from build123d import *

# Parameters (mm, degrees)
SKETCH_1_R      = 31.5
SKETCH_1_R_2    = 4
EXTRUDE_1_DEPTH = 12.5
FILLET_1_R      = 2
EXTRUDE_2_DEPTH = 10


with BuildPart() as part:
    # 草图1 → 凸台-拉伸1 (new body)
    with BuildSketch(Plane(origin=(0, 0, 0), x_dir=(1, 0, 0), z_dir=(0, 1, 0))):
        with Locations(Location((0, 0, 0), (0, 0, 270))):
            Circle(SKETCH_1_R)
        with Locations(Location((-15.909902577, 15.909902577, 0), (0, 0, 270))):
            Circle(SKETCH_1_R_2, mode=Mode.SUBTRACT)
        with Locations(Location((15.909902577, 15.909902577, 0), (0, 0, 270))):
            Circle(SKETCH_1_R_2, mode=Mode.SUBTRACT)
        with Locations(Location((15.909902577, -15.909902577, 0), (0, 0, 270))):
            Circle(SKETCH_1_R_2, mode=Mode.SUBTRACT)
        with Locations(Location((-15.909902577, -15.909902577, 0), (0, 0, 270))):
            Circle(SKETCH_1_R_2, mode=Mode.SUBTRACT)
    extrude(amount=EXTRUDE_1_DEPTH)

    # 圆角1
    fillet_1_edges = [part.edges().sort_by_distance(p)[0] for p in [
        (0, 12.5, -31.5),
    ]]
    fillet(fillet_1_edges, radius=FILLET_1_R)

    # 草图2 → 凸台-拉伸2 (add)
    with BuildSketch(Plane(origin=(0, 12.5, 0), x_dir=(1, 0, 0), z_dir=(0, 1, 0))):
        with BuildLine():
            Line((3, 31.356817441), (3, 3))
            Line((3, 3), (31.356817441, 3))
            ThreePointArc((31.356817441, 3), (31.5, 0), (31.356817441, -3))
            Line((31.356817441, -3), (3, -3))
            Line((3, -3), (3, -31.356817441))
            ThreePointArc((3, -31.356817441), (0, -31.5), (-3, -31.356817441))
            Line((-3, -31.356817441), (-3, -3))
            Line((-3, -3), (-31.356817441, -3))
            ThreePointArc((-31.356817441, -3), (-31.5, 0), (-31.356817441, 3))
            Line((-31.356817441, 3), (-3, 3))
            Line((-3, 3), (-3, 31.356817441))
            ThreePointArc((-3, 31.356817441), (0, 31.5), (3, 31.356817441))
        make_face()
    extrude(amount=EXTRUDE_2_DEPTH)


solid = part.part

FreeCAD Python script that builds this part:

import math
import FreeCAD as App
import Part
import Sketcher

V = App.Vector
Q = App.Units.Quantity


def edges_at(feature, points):
    """Names of the edges that pass closest to the given points."""
    edges = feature.Shape.Edges
    near = lambda p: min(range(len(edges)), key=lambda i: edges[i].distToShape(Part.Vertex(*p))[0])
    return sorted({f"Edge{near(p) + 1}" for p in points})

doc = App.newDocument("Part")
body = doc.addObject("PartDesign::Body", "Body")

sketch1 = doc.addObject("Sketcher::SketchObject", "Sketch")
body.addObject(sketch1)
sketch1.AttachmentSupport = (doc.XZ_Plane, [""])
sketch1.MapMode = "FlatFace"
sketch1.addGeometry(Part.Circle(V(0, 0, 0), V(0, 0, 1), 31.5), False)
sketch1.addGeometry(Part.Circle(V(-15.9, -15.9, 0), V(0, 0, 1), 4), False)
sketch1.addGeometry(Part.Circle(V(-15.9, 15.9, 0), V(0, 0, 1), 4), False)
sketch1.addGeometry(Part.Circle(V(15.9, -15.9, 0), V(0, 0, 1), 4), False)
sketch1.addGeometry(Part.Circle(V(15.9, 15.9, 0), V(0, 0, 1), 4), False)
sketch1.addConstraint(Sketcher.Constraint("Coincident", 0, 3, -1, 1))
sketch1.addConstraint(Sketcher.Constraint("Equal", 1, 2))
sketch1.addConstraint(Sketcher.Constraint("Equal", 2, 3))
sketch1.addConstraint(Sketcher.Constraint("Equal", 3, 4))
sketch1.addConstraint(Sketcher.Constraint("Symmetric", 2, 3, 3, 3, -1, 1))
sketch1.addConstraint(Sketcher.Constraint("Symmetric", 1, 3, 4, 3, -1, 1))
sketch1.addConstraint(Sketcher.Constraint("Symmetric", 1, 3, 3, 3, -2))
sketch1.addConstraint(Sketcher.Constraint("Diameter", 0, Q("63 mm")))
sketch1.addConstraint(Sketcher.Constraint("Diameter", 1, Q("8 mm")))
sketch1.addConstraint(Sketcher.Constraint("DistanceX", 1, 3, -1, 1, Q("15.909903 mm")))
sketch1.addConstraint(Sketcher.Constraint("DistanceY", 1, 3, -1, 1, Q("15.909903 mm")))
pad1 = doc.addObject("PartDesign::Pad", "Pad")
body.addObject(pad1)
pad1.Profile = sketch1
pad1.Length = 12.5
pad1.Reversed = True
doc.recompute()

fillet = doc.addObject("PartDesign::Fillet", "Fillet")
body.addObject(fillet)
fillet.Base = (pad1, edges_at(pad1, [(0, 12.5, -31.5)]))
fillet.Radius = 2

sketch2 = doc.addObject("Sketcher::SketchObject", "Sketch001")
body.addObject(sketch2)
sketch2.AttachmentSupport = (doc.XZ_Plane, [""])
sketch2.MapMode = "FlatFace"
sketch2.AttachmentOffset = App.Placement(V(0, 0, -12.5), App.Rotation())
sketch2.addGeometry(Part.LineSegment(V(3, -3, 0), V(3, -31, 0)), False)
sketch2.addGeometry(Part.ArcOfCircle(Part.Circle(V(0, 0, 0), V(0, 0, 1), 32), math.radians(-95.47), math.radians(-84.53)), False)
sketch2.addGeometry(Part.LineSegment(V(-3, -31, 0), V(-3, -3, 0)), False)
sketch2.addGeometry(Part.LineSegment(V(-3, -3, 0), V(-31, -3, 0)), False)
sketch2.addGeometry(Part.ArcOfCircle(Part.Circle(V(0, 0, 0), V(0, 0, 1), 32), math.radians(174.53), math.radians(185.47)), False)
sketch2.addGeometry(Part.LineSegment(V(-31, 3, 0), V(-3, 3, 0)), False)
sketch2.addGeometry(Part.LineSegment(V(-3, 3, 0), V(-3, 31, 0)), False)
sketch2.addGeometry(Part.ArcOfCircle(Part.Circle(V(0, 0, 0), V(0, 0, 1), 32), math.radians(84.53), math.radians(95.47)), False)
sketch2.addGeometry(Part.LineSegment(V(3, 31, 0), V(3, 3, 0)), False)
sketch2.addGeometry(Part.LineSegment(V(3, 3, 0), V(31, 3, 0)), False)
sketch2.addGeometry(Part.ArcOfCircle(Part.Circle(V(0, 0, 0), V(0, 0, 1), 32), math.radians(-5.47), math.radians(5.47)), False)
sketch2.addGeometry(Part.LineSegment(V(31, -3, 0), V(3, -3, 0)), False)
sketch2.addConstraint(Sketcher.Constraint("Coincident", 0, 2, 1, 2))
sketch2.addConstraint(Sketcher.Constraint("Coincident", 1, 1, 2, 1))
sketch2.addConstraint(Sketcher.Constraint("Coincident", 2, 2, 3, 1))
sketch2.addConstraint(Sketcher.Constraint("Coincident", 3, 2, 4, 2))
sketch2.addConstraint(Sketcher.Constraint("Coincident", 4, 1, 5, 1))
sketch2.addConstraint(Sketcher.Constraint("Coincident", 5, 2, 6, 1))
sketch2.addConstraint(Sketcher.Constraint("Coincident", 6, 2, 7, 2))
sketch2.addConstraint(Sketcher.Constraint("Coincident", 7, 1, 8, 1))
sketch2.addConstraint(Sketcher.Constraint("Coincident", 8, 2, 9, 1))
sketch2.addConstraint(Sketcher.Constraint("Coincident", 9, 2, 10, 2))
sketch2.addConstraint(Sketcher.Constraint("Coincident", 10, 1, 11, 1))
sketch2.addConstraint(Sketcher.Constraint("Coincident", 11, 2, 0, 1))
sketch2.addConstraint(Sketcher.Constraint("Vertical", 0))
sketch2.addConstraint(Sketcher.Constraint("Vertical", 2))
sketch2.addConstraint(Sketcher.Constraint("Horizontal", 3))
sketch2.addConstraint(Sketcher.Constraint("Horizontal", 5))
sketch2.addConstraint(Sketcher.Constraint("Vertical", 6))
sketch2.addConstraint(Sketcher.Constraint("Vertical", 8))
sketch2.addConstraint(Sketcher.Constraint("Horizontal", 9))
sketch2.addConstraint(Sketcher.Constraint("Horizontal", 11))
sketch2.addConstraint(Sketcher.Constraint("Coincident", 1, 3, -1, 1))
sketch2.addConstraint(Sketcher.Constraint("Coincident", 4, 3, -1, 1))
sketch2.addConstraint(Sketcher.Constraint("Coincident", 7, 3, -1, 1))
sketch2.addConstraint(Sketcher.Constraint("Coincident", 10, 3, -1, 1))
sketch2.addConstraint(Sketcher.Constraint("Equal", 1, 4))
sketch2.addConstraint(Sketcher.Constraint("Equal", 4, 7))
sketch2.addConstraint(Sketcher.Constraint("Equal", 7, 10))
sketch2.addConstraint(Sketcher.Constraint("Symmetric", 2, 2, 8, 2, -1, 1))
sketch2.addConstraint(Sketcher.Constraint("Symmetric", 5, 2, 11, 2, -1, 1))
sketch2.addConstraint(Sketcher.Constraint("Symmetric", 5, 2, 8, 2, -2))
sketch2.addConstraint(Sketcher.Constraint("Equal", 11, 0))
sketch2.addConstraint(Sketcher.Constraint("Radius", 1, Q("31.5 mm")))
sketch2.addConstraint(Sketcher.Constraint("DistanceX", -1, 1, 0, 2, Q("3 mm")))
pad2 = doc.addObject("PartDesign::Pad", "Pad001")
body.addObject(pad2)
pad2.Profile = sketch2
pad2.Length = 10
pad2.Reversed = True

doc.recompute()
